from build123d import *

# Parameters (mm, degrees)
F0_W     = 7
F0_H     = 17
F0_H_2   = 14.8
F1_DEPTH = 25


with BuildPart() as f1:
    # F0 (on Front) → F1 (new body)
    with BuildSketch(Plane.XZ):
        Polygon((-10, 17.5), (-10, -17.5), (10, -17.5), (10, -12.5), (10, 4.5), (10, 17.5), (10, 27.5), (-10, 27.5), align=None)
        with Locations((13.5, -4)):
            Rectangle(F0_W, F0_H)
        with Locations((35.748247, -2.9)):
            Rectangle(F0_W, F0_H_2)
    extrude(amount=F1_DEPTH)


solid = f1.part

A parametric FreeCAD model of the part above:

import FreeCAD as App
import Part
import Sketcher

V = App.Vector
Q = App.Units.Quantity

doc = App.newDocument("Part")
params = doc.addObject("Spreadsheet::Sheet", "Params")
for row, (alias, value) in enumerate([
    ("sketch1_width", "20 mm"),
    ("sketch1_width2", "7 mm"),
    ("sketch1_height", "5 mm"),
    ("sketch1_height2", "17 mm"),
    ("sketch1_height3", "23 mm"),
    ("pad1_length", "25 mm"),
], start=1):
    params.set(f"A{row}", alias)
    params.set(f"B{row}", "=" + value)
    params.setAlias(f"B{row}", alias)

body = doc.addObject("PartDesign::Body", "Body")
body.AllowCompound = True

# Sketch on XZ plane
sketch1 = body.newObject("Sketcher::SketchObject", "Sketch")
sketch1.AttachmentSupport = (doc.getObject("XZ_Plane"), [""])
sketch1.MapMode = "FlatFace"
sketch1.addGeometry(Part.LineSegment(V(-10, -18, 0), V(10, -18, 0)), False)
sketch1.addGeometry(Part.LineSegment(V(10, -18, 0), V(10, -12, 0)), False)
sketch1.addGeometry(Part.LineSegment(V(10, -12, 0), V(17, -12, 0)), False)
sketch1.addGeometry(Part.LineSegment(V(17, -12, 0), V(17, 4, 0)), False)
sketch1.addGeometry(Part.LineSegment(V(17, 4, 0), V(10, 4, 0)), False)
sketch1.addGeometry(Part.LineSegment(V(10, 4, 0), V(10, 28, 0)), False)
sketch1.addGeometry(Part.LineSegment(V(10, 28, 0), V(-10, 28, 0)), False)
sketch1.addGeometry(Part.LineSegment(V(-10, 28, 0), V(-10, -18, 0)), False)
sketch1.addGeometry(Part.LineSegment(V(32, 4, 0), V(32, -10, 0)), False)
sketch1.addGeometry(Part.LineSegment(V(32, -10, 0), V(39, -10, 0)), False)
sketch1.addGeometry(Part.LineSegment(V(39, -10, 0), V(39, 4, 0)), False)
sketch1.addGeometry(Part.LineSegment(V(39, 4, 0), V(32, 4, 0)), False)
sketch1.addConstraint(Sketcher.Constraint("Coincident", 0, 2, 1, 1))
sketch1.addConstraint(Sketcher.Constraint("Coincident", 1, 2, 2, 1))
sketch1.addConstraint(Sketcher.Constraint("Coincident", 2, 2, 3, 1))
sketch1.addConstraint(Sketcher.Constraint("Coincident", 3, 2, 4, 1))
sketch1.addConstraint(Sketcher.Constraint("Coincident", 4, 2, 5, 1))
sketch1.addConstraint(Sketcher.Constraint("Coincident", 5, 2, 6, 1))
sketch1.addConstraint(Sketcher.Constraint("Coincident", 6, 2, 7, 1))
sketch1.addConstraint(Sketcher.Constraint("Coincident", 7, 2, 0, 1))
sketch1.addConstraint(Sketcher.Constraint("Coincident", 8, 2, 9, 1))
sketch1.addConstraint(Sketcher.Constraint("Coincident", 9, 2, 10, 1))
sketch1.addConstraint(Sketcher.Constraint("Coincident", 10, 2, 11, 1))
sketch1.addConstraint(Sketcher.Constraint("Coincident", 11, 2, 8, 1))
sketch1.addConstraint(Sketcher.Constraint("Horizontal", 0))
sketch1.addConstraint(Sketcher.Constraint("Vertical", 1))
sketch1.addConstraint(Sketcher.Constraint("Horizontal", 2))
sketch1.addConstraint(Sketcher.Constraint("Vertical", 3))
sketch1.addConstraint(Sketcher.Constraint("Horizontal", 4))
sketch1.addConstraint(Sketcher.Constraint("Vertical", 5))
sketch1.addConstraint(Sketcher.Constraint("Horizontal", 6))
sketch1.addConstraint(Sketcher.Constraint("Vertical", 7))
sketch1.addConstraint(Sketcher.Constraint("Vertical", 8))
sketch1.addConstraint(Sketcher.Constraint("Horizontal", 9))
sketch1.addConstraint(Sketcher.Constraint("Vertical", 10))
sketch1.addConstraint(Sketcher.Constraint("Horizontal", 11))
sketch1.addConstraint(Sketcher.Constraint("Horizontal", 4, 2, 10, 2))
sketch1.addConstraint(Sketcher.Constraint("Vertical", 1, 2, 4, 2))
sketch1.addConstraint(Sketcher.Constraint("Equal", 4, 9))
sketch1.addConstraint(Sketcher.Constraint("DistanceX", 0, 1, 0, 2, Q("20 mm")))
sketch1.addConstraint(Sketcher.Constraint("DistanceX", 2, 1, 2, 2, Q("7 mm")))
sketch1.addConstraint(Sketcher.Constraint("DistanceY", 1, 1, 1, 2, Q("5 mm")))
sketch1.addConstraint(Sketcher.Constraint("DistanceY", 3, 1, 3, 2, Q("17 mm")))
sketch1.addConstraint(Sketcher.Constraint("DistanceY", 5, 1, 5, 2, Q("23 mm")))
sketch1.addConstraint(Sketcher.Constraint("DistanceY", 8, 2, 8, 1, Q("14.8 mm")))
sketch1.addConstraint(Sketcher.Constraint("DistanceX", -1, 1, 0, 2, Q("10 mm")))
sketch1.addConstraint(Sketcher.Constraint("DistanceY", 0, 2, -1, 1, Q("17.5 mm")))
sketch1.addConstraint(Sketcher.Constraint("DistanceX", -1, 1, 8, 2, Q("32.248247 mm")))
sketch1.setExpression("Constraints[27]", "Params.sketch1_width")
sketch1.setExpression("Constraints[28]", "Params.sketch1_width2")
sketch1.setExpression("Constraints[29]", "Params.sketch1_height")
sketch1.setExpression("Constraints[30]", "Params.sketch1_height2")
sketch1.setExpression("Constraints[31]", "Params.sketch1_height3")
pad1 = body.newObject("PartDesign::Pad", "Pad")
pad1.Profile = sketch1
pad1.setExpression("Length", "Params.pad1_length")

doc.recompute()
